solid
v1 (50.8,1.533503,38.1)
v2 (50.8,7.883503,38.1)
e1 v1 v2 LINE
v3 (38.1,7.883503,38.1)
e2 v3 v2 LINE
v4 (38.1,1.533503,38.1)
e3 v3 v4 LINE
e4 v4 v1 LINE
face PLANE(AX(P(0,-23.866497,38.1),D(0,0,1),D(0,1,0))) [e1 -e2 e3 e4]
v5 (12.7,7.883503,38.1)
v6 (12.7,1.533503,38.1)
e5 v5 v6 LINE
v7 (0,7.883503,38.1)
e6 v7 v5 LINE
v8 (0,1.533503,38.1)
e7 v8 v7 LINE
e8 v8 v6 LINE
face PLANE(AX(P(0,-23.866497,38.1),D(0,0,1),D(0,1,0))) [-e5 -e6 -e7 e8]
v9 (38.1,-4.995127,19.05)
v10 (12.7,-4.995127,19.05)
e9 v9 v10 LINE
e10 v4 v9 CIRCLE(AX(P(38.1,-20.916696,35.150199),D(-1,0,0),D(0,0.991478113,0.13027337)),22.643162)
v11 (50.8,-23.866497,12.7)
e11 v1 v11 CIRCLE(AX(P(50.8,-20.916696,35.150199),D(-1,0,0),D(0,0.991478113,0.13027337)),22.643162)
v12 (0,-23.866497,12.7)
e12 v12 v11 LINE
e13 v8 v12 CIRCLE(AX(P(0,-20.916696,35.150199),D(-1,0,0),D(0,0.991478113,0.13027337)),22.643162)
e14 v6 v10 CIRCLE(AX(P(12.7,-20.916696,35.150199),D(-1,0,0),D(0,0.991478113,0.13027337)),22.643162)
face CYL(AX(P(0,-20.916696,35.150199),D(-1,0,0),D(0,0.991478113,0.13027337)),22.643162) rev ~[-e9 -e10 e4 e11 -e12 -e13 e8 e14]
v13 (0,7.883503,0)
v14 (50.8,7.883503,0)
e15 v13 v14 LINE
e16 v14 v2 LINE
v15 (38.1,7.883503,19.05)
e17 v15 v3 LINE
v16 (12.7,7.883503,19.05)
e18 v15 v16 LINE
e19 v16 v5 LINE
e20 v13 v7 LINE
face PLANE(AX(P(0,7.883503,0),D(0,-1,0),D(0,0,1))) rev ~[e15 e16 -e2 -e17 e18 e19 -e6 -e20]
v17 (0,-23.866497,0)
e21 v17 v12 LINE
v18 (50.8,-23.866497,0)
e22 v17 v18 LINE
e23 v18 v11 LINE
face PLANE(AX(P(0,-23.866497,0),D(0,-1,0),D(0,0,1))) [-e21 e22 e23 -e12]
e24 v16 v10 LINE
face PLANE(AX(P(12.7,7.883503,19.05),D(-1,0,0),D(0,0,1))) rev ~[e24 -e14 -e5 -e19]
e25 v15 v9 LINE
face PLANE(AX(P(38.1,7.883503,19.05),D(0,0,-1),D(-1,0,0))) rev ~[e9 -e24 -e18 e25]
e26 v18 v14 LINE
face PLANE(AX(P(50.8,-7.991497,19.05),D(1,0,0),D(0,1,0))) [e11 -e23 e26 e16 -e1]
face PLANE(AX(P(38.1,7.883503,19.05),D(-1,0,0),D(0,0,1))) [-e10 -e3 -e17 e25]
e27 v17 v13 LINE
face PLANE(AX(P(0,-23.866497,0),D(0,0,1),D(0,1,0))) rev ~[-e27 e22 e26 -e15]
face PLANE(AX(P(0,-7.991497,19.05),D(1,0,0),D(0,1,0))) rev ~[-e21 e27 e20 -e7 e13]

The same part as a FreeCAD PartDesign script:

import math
import FreeCAD as App
import Part
import Sketcher

V = App.Vector
Q = App.Units.Quantity

doc = App.newDocument("Part")
body = doc.addObject("PartDesign::Body", "Body")

sketch1 = doc.addObject("Sketcher::SketchObject", "Sketch")
body.addObject(sketch1)
sketch1.AttachmentSupport = (doc.YZ_Plane, [""])
sketch1.MapMode = "FlatFace"
sketch1.addGeometry(Part.LineSegment(V(-24, 38, 0), V(-24, 0, 0)), False)
sketch1.addGeometry(Part.LineSegment(V(-24, 0, 0), V(8, 0, 0)), False)
sketch1.addGeometry(Part.LineSegment(V(8, 0, 0), V(8, 38, 0)), False)
sketch1.addGeometry(Part.LineSegment(V(8, 38, 0), V(-24, 38, 0)), False)
sketch1.addConstraint(Sketcher.Constraint("Coincident", 0, 2, 1, 1))
sketch1.addConstraint(Sketcher.Constraint("Coincident", 1, 2, 2, 1))
sketch1.addConstraint(Sketcher.Constraint("Coincident", 2, 2, 3, 1))
sketch1.addConstraint(Sketcher.Constraint("Coincident", 3, 2, 0, 1))
sketch1.addConstraint(Sketcher.Constraint("Vertical", 0))
sketch1.addConstraint(Sketcher.Constraint("Horizontal", 1))
sketch1.addConstraint(Sketcher.Constraint("Vertical", 2))
sketch1.addConstraint(Sketcher.Constraint("Horizontal", 3))
sketch1.addConstraint(Sketcher.Constraint("PointOnObject", 0, 2, -1))
sketch1.addConstraint(Sketcher.Constraint("DistanceY", 0, 2, 0, 1, Q("1.5 in")))
sketch1.addConstraint(Sketcher.Constraint("DistanceX", 1, 1, 1, 2, Q("1.25 in")))
sketch1.addConstraint(Sketcher.Constraint("DistanceX", 0, 2, -1, 1, 23.866497))
pad1 = doc.addObject("PartDesign::Pad", "Pad")
body.addObject(pad1)
pad1.Profile = sketch1
pad1.Length = Q("2 in")

sketch2 = doc.addObject("Sketcher::SketchObject", "Sketch001")
body.addObject(sketch2)
sketch2.AttachmentSupport = (doc.YZ_Plane, [""])
sketch2.MapMode = "FlatFace"
sketch2.addGeometry(Part.LineSegment(V(-24, 38, 0), V(2, 38, 0)), False)
sketch2.addGeometry(Part.ArcOfCircle(Part.Circle(V(-21, 35, 0), V(0, 0, 1), 23), math.radians(-97), math.radians(7)), False)
sketch2.addGeometry(Part.LineSegment(V(-24, 13, 0), V(-24, 38, 0)), False)
sketch2.addConstraint(Sketcher.Constraint("Coincident", 0, 2, 1, 2))
sketch2.addConstraint(Sketcher.Constraint("Coincident", 1, 1, 2, 1))
sketch2.addConstraint(Sketcher.Constraint("Coincident", 2, 2, 0, 1))
sketch2.addConstraint(Sketcher.Constraint("Horizontal", 0))
sketch2.addConstraint(Sketcher.Constraint("Vertical", 2))
sketch2.addConstraint(Sketcher.Constraint("Equal", 0, 2))
sketch2.addConstraint(Sketcher.Constraint("DistanceX", 0, 1, 0, 2, Q("1 in")))
sketch2.addConstraint(Sketcher.Constraint("DistanceY", -1, 1, 0, 2, Q("1.5 in")))
sketch2.addConstraint(Sketcher.Constraint("Radius", 1, 22.643162))
sketch2.addConstraint(Sketcher.Constraint("DistanceX", 1, 3, -1, 1, 20.916696))
pocket1 = doc.addObject("PartDesign::Pocket", "Pocket")
body.addObject(pocket1)
pocket1.Profile = sketch2
pocket1.Type = "ThroughAll"
pocket1.Reversed = True

sketch3 = doc.addObject("Sketcher::SketchObject", "Sketch002")
body.addObject(sketch3)
sketch3.AttachmentSupport = (doc.XZ_Plane, [""])
sketch3.MapMode = "FlatFace"
sketch3.AttachmentOffset = App.Placement(V(0, 0, -7.883503), App.Rotation())
sketch3.addGeometry(Part.LineSegment(V(38, 38, 0), V(38, 19, 0)), False)
sketch3.addGeometry(Part.LineSegment(V(38, 19, 0), V(13, 19, 0)), False)
sketch3.addGeometry(Part.LineSegment(V(13, 19, 0), V(13, 38, 0)), False)
sketch3.addGeometry(Part.LineSegment(V(13, 38, 0), V(38, 38, 0)), False)
sketch3.addConstraint(Sketcher.Constraint("Coincident", 0, 2, 1, 1))
sketch3.addConstraint(Sketcher.Constraint("Coincident", 1, 2, 2, 1))
sketch3.addConstraint(Sketcher.Constraint("Coincident", 2, 2, 3, 1))
sketch3.addConstraint(Sketcher.Constraint("Coincident", 3, 2, 0, 1))
sketch3.addConstraint(Sketcher.Constraint("Vertical", 0))
sketch3.addConstraint(Sketcher.Constraint("Horizontal", 1))
sketch3.addConstraint(Sketcher.Constraint("Vertical", 2))
sketch3.addConstraint(Sketcher.Constraint("Horizontal", 3))
sketch3.addConstraint(Sketcher.Constraint("DistanceX", 1, 2, 1, 1, Q("1 in")))
sketch3.addConstraint(Sketcher.Constraint("DistanceY", 0, 2, 0, 1, Q("0.75 in")))
sketch3.addConstraint(Sketcher.Constraint("DistanceX", -1, 1, 0, 2, Q("1.5 in")))
sketch3.addConstraint(Sketcher.Constraint("DistanceY", -1, 1, 2, 2, Q("1.5 in")))
pocket2 = doc.addObject("PartDesign::Pocket", "Pocket001")
body.addObject(pocket2)
pocket2.Profile = sketch3
pocket2.Type = "ThroughAll"
pocket2.Reversed = True

doc.recompute()
